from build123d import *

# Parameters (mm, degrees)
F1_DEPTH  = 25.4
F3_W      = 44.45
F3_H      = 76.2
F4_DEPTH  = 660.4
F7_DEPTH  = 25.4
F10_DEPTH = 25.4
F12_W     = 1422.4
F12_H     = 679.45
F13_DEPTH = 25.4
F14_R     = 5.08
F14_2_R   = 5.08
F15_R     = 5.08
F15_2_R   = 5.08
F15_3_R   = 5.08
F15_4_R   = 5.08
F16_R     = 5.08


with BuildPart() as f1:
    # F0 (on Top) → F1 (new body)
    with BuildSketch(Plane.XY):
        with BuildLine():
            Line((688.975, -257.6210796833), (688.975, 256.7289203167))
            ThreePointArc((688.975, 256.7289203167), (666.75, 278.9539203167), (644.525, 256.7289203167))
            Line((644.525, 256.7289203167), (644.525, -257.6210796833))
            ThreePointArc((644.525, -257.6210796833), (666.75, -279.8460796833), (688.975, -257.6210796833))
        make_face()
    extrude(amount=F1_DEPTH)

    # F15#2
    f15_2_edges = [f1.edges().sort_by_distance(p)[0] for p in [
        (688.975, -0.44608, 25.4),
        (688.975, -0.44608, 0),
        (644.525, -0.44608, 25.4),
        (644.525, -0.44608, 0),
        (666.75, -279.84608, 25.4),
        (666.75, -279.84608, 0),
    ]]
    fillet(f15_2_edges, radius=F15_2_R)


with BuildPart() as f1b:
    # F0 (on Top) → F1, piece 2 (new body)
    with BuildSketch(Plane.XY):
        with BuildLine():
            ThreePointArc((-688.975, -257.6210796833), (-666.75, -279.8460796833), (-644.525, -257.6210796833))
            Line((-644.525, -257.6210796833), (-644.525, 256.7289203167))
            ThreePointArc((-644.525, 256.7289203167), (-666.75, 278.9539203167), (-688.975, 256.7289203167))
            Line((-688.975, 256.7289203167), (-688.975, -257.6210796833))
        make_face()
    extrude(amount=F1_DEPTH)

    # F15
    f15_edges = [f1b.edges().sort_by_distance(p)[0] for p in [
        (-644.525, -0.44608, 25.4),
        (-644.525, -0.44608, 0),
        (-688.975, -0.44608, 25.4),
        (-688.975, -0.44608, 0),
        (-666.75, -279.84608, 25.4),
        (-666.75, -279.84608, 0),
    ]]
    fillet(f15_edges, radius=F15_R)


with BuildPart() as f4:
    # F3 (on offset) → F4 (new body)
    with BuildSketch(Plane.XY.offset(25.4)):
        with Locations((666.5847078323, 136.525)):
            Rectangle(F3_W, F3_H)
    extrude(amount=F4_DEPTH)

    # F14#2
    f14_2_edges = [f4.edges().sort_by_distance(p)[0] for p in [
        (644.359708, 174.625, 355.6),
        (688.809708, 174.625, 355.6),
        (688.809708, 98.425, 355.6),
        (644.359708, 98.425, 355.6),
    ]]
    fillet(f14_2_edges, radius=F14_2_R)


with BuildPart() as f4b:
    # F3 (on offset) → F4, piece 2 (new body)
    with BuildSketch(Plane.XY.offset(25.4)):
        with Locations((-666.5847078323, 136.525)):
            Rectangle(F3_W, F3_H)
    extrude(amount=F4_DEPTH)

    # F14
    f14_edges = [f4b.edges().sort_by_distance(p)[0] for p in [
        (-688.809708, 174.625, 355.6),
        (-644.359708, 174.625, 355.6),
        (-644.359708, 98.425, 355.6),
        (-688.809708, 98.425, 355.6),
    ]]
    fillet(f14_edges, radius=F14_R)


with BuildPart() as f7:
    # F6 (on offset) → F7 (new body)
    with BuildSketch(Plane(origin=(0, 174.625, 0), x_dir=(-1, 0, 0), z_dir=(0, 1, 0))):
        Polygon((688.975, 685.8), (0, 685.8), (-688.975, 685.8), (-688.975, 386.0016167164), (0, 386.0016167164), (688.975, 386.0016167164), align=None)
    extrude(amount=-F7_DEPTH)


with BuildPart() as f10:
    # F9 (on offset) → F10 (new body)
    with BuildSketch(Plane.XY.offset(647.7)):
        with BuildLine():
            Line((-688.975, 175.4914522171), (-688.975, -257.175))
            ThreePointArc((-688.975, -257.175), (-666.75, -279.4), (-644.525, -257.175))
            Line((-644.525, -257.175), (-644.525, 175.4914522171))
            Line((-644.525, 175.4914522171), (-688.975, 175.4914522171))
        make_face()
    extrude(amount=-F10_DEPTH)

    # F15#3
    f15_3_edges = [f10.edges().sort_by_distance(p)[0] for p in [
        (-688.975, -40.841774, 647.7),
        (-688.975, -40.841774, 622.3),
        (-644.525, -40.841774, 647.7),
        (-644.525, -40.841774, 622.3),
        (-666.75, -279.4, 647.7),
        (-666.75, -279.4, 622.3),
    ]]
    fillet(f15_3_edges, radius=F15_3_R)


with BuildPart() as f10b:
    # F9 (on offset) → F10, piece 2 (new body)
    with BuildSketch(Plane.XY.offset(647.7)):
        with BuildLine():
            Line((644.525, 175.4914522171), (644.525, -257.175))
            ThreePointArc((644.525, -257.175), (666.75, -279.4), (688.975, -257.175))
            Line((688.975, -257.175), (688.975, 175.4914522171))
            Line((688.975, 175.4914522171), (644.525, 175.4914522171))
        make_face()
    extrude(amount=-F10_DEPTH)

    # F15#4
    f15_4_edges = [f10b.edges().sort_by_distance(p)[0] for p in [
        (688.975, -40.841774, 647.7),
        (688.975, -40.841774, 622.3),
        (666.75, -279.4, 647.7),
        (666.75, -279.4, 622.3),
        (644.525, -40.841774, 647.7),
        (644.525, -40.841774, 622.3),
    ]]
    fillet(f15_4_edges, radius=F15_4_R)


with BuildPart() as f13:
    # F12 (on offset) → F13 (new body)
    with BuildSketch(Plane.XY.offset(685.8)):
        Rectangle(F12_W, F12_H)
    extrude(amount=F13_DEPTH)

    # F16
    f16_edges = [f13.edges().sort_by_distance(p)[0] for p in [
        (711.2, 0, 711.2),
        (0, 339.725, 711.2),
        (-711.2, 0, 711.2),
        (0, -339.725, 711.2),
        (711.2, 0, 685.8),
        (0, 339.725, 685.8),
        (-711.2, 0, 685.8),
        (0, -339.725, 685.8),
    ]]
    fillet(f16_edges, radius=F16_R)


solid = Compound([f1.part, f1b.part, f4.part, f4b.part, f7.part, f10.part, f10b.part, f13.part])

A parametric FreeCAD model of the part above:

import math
import FreeCAD as App
import Part
import Sketcher
from FreeCAD import Vector
Q = App.Units.Quantity


def edges_at(feature, points):
    """Names of the edges that pass closest to the given points."""
    edges = feature.Shape.Edges
    near = lambda p: min(range(len(edges)), key=lambda i: edges[i].distToShape(Part.Vertex(*p))[0])
    return sorted({f"Edge{near(p) + 1}" for p in points})

doc = App.newDocument("Part")
body = doc.addObject("PartDesign::Body", "Body")

# Sketch on XY plane
sketch1 = doc.addObject("Sketcher::SketchObject", "Sketch")
body.addObject(sketch1)
sketch1.AttachmentSupport = (doc.XY_Plane, [""])
sketch1.MapMode = "FlatFace"
sketch1.addGeometry(Part.LineSegment(Vector(689, -258, 0), Vector(689, 257, 0)), False)
sketch1.addGeometry(Part.ArcOfCircle(Part.Circle(Vector(667, 257, 0), Vector(0, 0, 1), 22), math.radians(0), math.radians(180)), False)
sketch1.addGeometry(Part.LineSegment(Vector(645, 257, 0), Vector(645, -258, 0)), False)
sketch1.addGeometry(Part.ArcOfCircle(Part.Circle(Vector(667, -258, 0), Vector(0, 0, 1), 22), math.radians(180), math.radians(360)), False)
sketch1.addConstraint(Sketcher.Constraint("Tangent", 0, 2, 1, 1))
sketch1.addConstraint(Sketcher.Constraint("Tangent", 1, 2, 2, 1))
sketch1.addConstraint(Sketcher.Constraint("Tangent", 2, 2, 3, 1))
sketch1.addConstraint(Sketcher.Constraint("Tangent", 3, 2, 0, 1))
sketch1.addConstraint(Sketcher.Constraint("Vertical", 0))
sketch1.addConstraint(Sketcher.Constraint("Vertical", 2))
sketch1.addConstraint(Sketcher.Constraint("Radius", 1, Q("0.875 in")))
sketch1.addConstraint(Sketcher.Constraint("DistanceY", 0, 1, 0, 2, Q("20.25 in")))
sketch1.addConstraint(Sketcher.Constraint("DistanceX", -1, 1, 1, 3, Q("26.25 in")))
sketch1.addConstraint(Sketcher.Constraint("DistanceY", -1, 1, 1, 3, Q("256.72892 mm")))
pad1 = doc.addObject("PartDesign::Pad", "Pad")
body.addObject(pad1)
pad1.Profile = sketch1
pad1.Length = Q("1 in")
doc.recompute()

fillet = doc.addObject("PartDesign::Fillet", "Fillet")
body.addObject(fillet)
fillet.Base = (pad1, edges_at(pad1, [
    (688.975, -0.446, 25.4),
    (688.975, -0.446, 0),
    (644.525, -0.446, 25.4),
    (644.525, -0.446, 0),
    (666.75, -279.846, 25.4),
    (666.75, -279.846, 0),
]))
fillet.Radius = Q("0.2 in")
body2 = doc.addObject("PartDesign::Body", "Body001")

# Sketch on XY plane
sketch2 = doc.addObject("Sketcher::SketchObject", "Sketch001")
body2.addObject(sketch2)
sketch2.AttachmentSupport = (doc.getObject("XY_Plane001"), [""])
sketch2.MapMode = "FlatFace"
sketch2.addGeometry(Part.ArcOfCircle(Part.Circle(Vector(-667, -258, 0), Vector(0, 0, 1), 22), math.radians(180), math.radians(360)), False)
sketch2.addGeometry(Part.LineSegment(Vector(-645, -258, 0), Vector(-645, 257, 0)), False)
sketch2.addGeometry(Part.ArcOfCircle(Part.Circle(Vector(-667, 257, 0), Vector(0, 0, 1), 22), math.radians(0), math.radians(180)), False)
sketch2.addGeometry(Part.LineSegment(Vector(-689, 257, 0), Vector(-689, -258, 0)), False)
sketch2.addConstraint(Sketcher.Constraint("Tangent", 0, 2, 1, 1))
sketch2.addConstraint(Sketcher.Constraint("Tangent", 1, 2, 2, 1))
sketch2.addConstraint(Sketcher.Constraint("Tangent", 2, 2, 3, 1))
sketch2.addConstraint(Sketcher.Constraint("Tangent", 3, 2, 0, 1))
sketch2.addConstraint(Sketcher.Constraint("Vertical", 1))
sketch2.addConstraint(Sketcher.Constraint("Vertical", 3))
sketch2.addConstraint(Sketcher.Constraint("Radius", 0, Q("0.875 in")))
sketch2.addConstraint(Sketcher.Constraint("DistanceY", 1, 1, 1, 2, Q("20.25 in")))
sketch2.addConstraint(Sketcher.Constraint("DistanceX", 0, 3, -1, 1, Q("26.25 in")))
sketch2.addConstraint(Sketcher.Constraint("DistanceY", 0, 3, -1, 1, Q("257.62108 mm")))
pad2 = doc.addObject("PartDesign::Pad", "Pad001")
body2.addObject(pad2)
pad2.Profile = sketch2
pad2.Length = Q("1 in")
doc.recompute()

fillet2 = doc.addObject("PartDesign::Fillet", "Fillet001")
body2.addObject(fillet2)
fillet2.Base = (pad2, edges_at(pad2, [
    (-644.525, -0.446, 25.4),
    (-644.525, -0.446, 0),
    (-688.975, -0.446, 25.4),
    (-688.975, -0.446, 0),
    (-666.75, -279.846, 25.4),
    (-666.75, -279.846, 0),
]))
fillet2.Radius = Q("0.2 in")
body3 = doc.addObject("PartDesign::Body", "Body002")

# Sketch on XY plane
sketch3 = doc.addObject("Sketcher::SketchObject", "Sketch002")
body3.addObject(sketch3)
sketch3.AttachmentSupport = (doc.getObject("XY_Plane002"), [""])
sketch3.MapMode = "FlatFace"
sketch3.AttachmentOffset = App.Placement(Vector(0, 0, 1 * 25.4), App.Rotation())
sketch3.addGeometry(Part.LineSegment(Vector(644, 175, 0), Vector(644, 98, 0)), False)
sketch3.addGeometry(Part.LineSegment(Vector(644, 98, 0), Vector(689, 98, 0)), False)
sketch3.addGeometry(Part.LineSegment(Vector(689, 98, 0), Vector(689, 175, 0)), False)
sketch3.addGeometry(Part.LineSegment(Vector(689, 175, 0), Vector(644, 175, 0)), False)
sketch3.addConstraint(Sketcher.Constraint("Coincident", 0, 2, 1, 1))
sketch3.addConstraint(Sketcher.Constraint("Coincident", 1, 2, 2, 1))
sketch3.addConstraint(Sketcher.Constraint("Coincident", 2, 2, 3, 1))
sketch3.addConstraint(Sketcher.Constraint("Coincident", 3, 2, 0, 1))
sketch3.addConstraint(Sketcher.Constraint("Vertical", 0))
sketch3.addConstraint(Sketcher.Constraint("Horizontal", 1))
sketch3.addConstraint(Sketcher.Constraint("Vertical", 2))
sketch3.addConstraint(Sketcher.Constraint("Horizontal", 3))
sketch3.addConstraint(Sketcher.Constraint("DistanceY", 0, 2, 0, 1, Q("3 in")))
sketch3.addConstraint(Sketcher.Constraint("DistanceX", 1, 1, 1, 2, Q("1.75 in")))
sketch3.addConstraint(Sketcher.Constraint("DistanceY", -1, 1, 0, 2, Q("3.875 in")))
sketch3.addConstraint(Sketcher.Constraint("DistanceX", -1, 1, 0, 2, Q("644.359708 mm")))
pad3 = doc.addObject("PartDesign::Pad", "Pad002")
body3.addObject(pad3)
pad3.Profile = sketch3
pad3.Length = Q("26 in")
doc.recompute()

fillet3 = doc.addObject("PartDesign::Fillet", "Fillet002")
body3.addObject(fillet3)
fillet3.Base = (pad3, edges_at(pad3, [
    (644.36, 174.625, 355.6),
    (688.81, 174.625, 355.6),
    (688.81, 98.425, 355.6),
    (644.36, 98.425, 355.6),
]))
fillet3.Radius = Q("0.2 in")
body4 = doc.addObject("PartDesign::Body", "Body003")

# Sketch on XY plane
sketch4 = doc.addObject("Sketcher::SketchObject", "Sketch003")
body4.addObject(sketch4)
sketch4.AttachmentSupport = (doc.getObject("XY_Plane003"), [""])
sketch4.MapMode = "FlatFace"
sketch4.AttachmentOffset = App.Placement(Vector(0, 0, 1 * 25.4), App.Rotation())
sketch4.addGeometry(Part.LineSegment(Vector(-689, 175, 0), Vector(-689, 98, 0)), False)
sketch4.addGeometry(Part.LineSegment(Vector(-689, 98, 0), Vector(-644, 98, 0)), False)
sketch4.addGeometry(Part.LineSegment(Vector(-644, 98, 0), Vector(-644, 175, 0)), False)
sketch4.addGeometry(Part.LineSegment(Vector(-644, 175, 0), Vector(-689, 175, 0)), False)
sketch4.addConstraint(Sketcher.Constraint("Coincident", 0, 2, 1, 1))
sketch4.addConstraint(Sketcher.Constraint("Coincident", 1, 2, 2, 1))
sketch4.addConstraint(Sketcher.Constraint("Coincident", 2, 2, 3, 1))
sketch4.addConstraint(Sketcher.Constraint("Coincident", 3, 2, 0, 1))
sketch4.addConstraint(Sketcher.Constraint("Vertical", 0))
sketch4.addConstraint(Sketcher.Constraint("Horizontal", 1))
sketch4.addConstraint(Sketcher.Constraint("Vertical", 2))
sketch4.addConstraint(Sketcher.Constraint("Horizontal", 3))
sketch4.addConstraint(Sketcher.Constraint("DistanceY", 0, 2, 0, 1, Q("3 in")))
sketch4.addConstraint(Sketcher.Constraint("DistanceX", 1, 1, 1, 2, Q("1.75 in")))
sketch4.addConstraint(Sketcher.Constraint("DistanceY", -1, 1, 0, 2, Q("3.875 in")))
sketch4.addConstraint(Sketcher.Constraint("DistanceX", 0, 2, -1, 1, Q("688.809708 mm")))
pad4 = doc.addObject("PartDesign::Pad", "Pad003")
body4.addObject(pad4)
pad4.Profile = sketch4
pad4.Length = Q("26 in")
doc.recompute()

fillet4 = doc.addObject("PartDesign::Fillet", "Fillet003")
body4.addObject(fillet4)
fillet4.Base = (pad4, edges_at(pad4, [
    (-688.81, 174.625, 355.6),
    (-644.36, 174.625, 355.6),
    (-644.36, 98.425, 355.6),
    (-688.81, 98.425, 355.6),
]))
fillet4.Radius = Q("0.2 in")
body5 = doc.addObject("PartDesign::Body", "Body004")

# Sketch on XZ plane
sketch5 = doc.addObject("Sketcher::SketchObject", "Sketch004")
body5.addObject(sketch5)
sketch5.AttachmentSupport = (doc.getObject("XZ_Plane004"), [""])
sketch5.MapMode = "FlatFace"
sketch5.AttachmentOffset = App.Placement(Vector(0, 0, -6.875 * 25.4), App.Rotation())
sketch5.addGeometry(Part.LineSegment(Vector(-689, 686, 0), Vector(689, 686, 0)), False)
sketch5.addGeometry(Part.LineSegment(Vector(689, 686, 0), Vector(689, 386, 0)), False)
sketch5.addGeometry(Part.LineSegment(Vector(689, 386, 0), Vector(-689, 386, 0)), False)
sketch5.addGeometry(Part.LineSegment(Vector(-689, 386, 0), Vector(-689, 686, 0)), False)
sketch5.addConstraint(Sketcher.Constraint("Coincident", 0, 2, 1, 1))
sketch5.addConstraint(Sketcher.Constraint("Coincident", 1, 2, 2, 1))
sketch5.addConstraint(Sketcher.Constraint("Coincident", 2, 2, 3, 1))
sketch5.addConstraint(Sketcher.Constraint("Coincident", 3, 2, 0, 1))
sketch5.addConstraint(Sketcher.Constraint("Horizontal", 0))
sketch5.addConstraint(Sketcher.Constraint("Vertical", 1))
sketch5.addConstraint(Sketcher.Constraint("Horizontal", 2))
sketch5.addConstraint(Sketcher.Constraint("Vertical", 3))
sketch5.addConstraint(Sketcher.Constraint("DistanceY", -1, 1, 0, 2, Q("27 in")))
sketch5.addConstraint(Sketcher.Constraint("DistanceX", 0, 1, 0, 2, Q("54.25 in")))
sketch5.addConstraint(Sketcher.Constraint("DistanceX", -1, 1, 0, 2, Q("27.125 in")))
sketch5.addConstraint(Sketcher.Constraint("DistanceY", 1, 2, 1, 1, Q("299.798383 mm")))
pad5 = doc.addObject("PartDesign::Pad", "Pad004")
body5.addObject(pad5)
pad5.Profile = sketch5
pad5.Length = Q("1 in")
body6 = doc.addObject("PartDesign::Body", "Body005")

# Sketch on XY plane
sketch6 = doc.addObject("Sketcher::SketchObject", "Sketch005")
body6.addObject(sketch6)
sketch6.AttachmentSupport = (doc.getObject("XY_Plane005"), [""])
sketch6.MapMode = "FlatFace"
sketch6.AttachmentOffset = App.Placement(Vector(0, 0, 25.5 * 25.4), App.Rotation())
sketch6.addGeometry(Part.LineSegment(Vector(-689, 175, 0), Vector(-689, -257, 0)), False)
sketch6.addGeometry(Part.ArcOfCircle(Part.Circle(Vector(-667, -257, 0), Vector(0, 0, 1), 22), math.radians(180), math.radians(360)), False)
sketch6.addGeometry(Part.LineSegment(Vector(-645, -257, 0), Vector(-645, 175, 0)), False)
sketch6.addGeometry(Part.LineSegment(Vector(-645, 175, 0), Vector(-689, 175, 0)), False)
sketch6.addConstraint(Sketcher.Constraint("Tangent", 0, 2, 1, 1))
sketch6.addConstraint(Sketcher.Constraint("Tangent", 1, 2, 2, 1))
sketch6.addConstraint(Sketcher.Constraint("Coincident", 2, 2, 3, 1))
sketch6.addConstraint(Sketcher.Constraint("Coincident", 3, 2, 0, 1))
sketch6.addConstraint(Sketcher.Constraint("Vertical", 0))
sketch6.addConstraint(Sketcher.Constraint("Vertical", 2))
sketch6.addConstraint(Sketcher.Constraint("Horizontal", 3))
sketch6.addConstraint(Sketcher.Constraint("Radius", 1, Q("0.875 in")))
sketch6.addConstraint(Sketcher.Constraint("DistanceX", 1, 3, -1, 1, Q("26.25 in")))
sketch6.addConstraint(Sketcher.Constraint("DistanceY", 1, 3, -1, 1, Q("10.125 in")))
sketch6.addConstraint(Sketcher.Constraint("DistanceY", 0, 2, 0, 1, Q("432.666452 mm")))
pad6 = doc.addObject("PartDesign::Pad", "Pad005")
body6.addObject(pad6)
pad6.Profile = sketch6
pad6.Length = Q("1 in")
pad6.Reversed = True
doc.recompute()

fillet5 = doc.addObject("PartDesign::Fillet", "Fillet004")
body6.addObject(fillet5)
fillet5.Base = (pad6, edges_at(pad6, [
    (-688.975, -40.842, 647.7),
    (-688.975, -40.842, 622.3),
    (-644.525, -40.842, 647.7),
    (-644.525, -40.842, 622.3),
    (-666.75, -279.4, 647.7),
    (-666.75, -279.4, 622.3),
]))
fillet5.Radius = Q("0.2 in")
body7 = doc.addObject("PartDesign::Body", "Body006")

# Sketch on XY plane
sketch7 = doc.addObject("Sketcher::SketchObject", "Sketch006")
body7.addObject(sketch7)
sketch7.AttachmentSupport = (doc.getObject("XY_Plane006"), [""])
sketch7.MapMode = "FlatFace"
sketch7.AttachmentOffset = App.Placement(Vector(0, 0, 25.5 * 25.4), App.Rotation())
sketch7.addGeometry(Part.LineSegment(Vector(645, 175, 0), Vector(645, -257, 0)), False)
sketch7.addGeometry(Part.ArcOfCircle(Part.Circle(Vector(667, -257, 0), Vector(0, 0, 1), 22), math.radians(180), math.radians(360)), False)
sketch7.addGeometry(Part.LineSegment(Vector(689, -257, 0), Vector(689, 175, 0)), False)
sketch7.addGeometry(Part.LineSegment(Vector(689, 175, 0), Vector(645, 175, 0)), False)
sketch7.addConstraint(Sketcher.Constraint("Tangent", 0, 2, 1, 1))
sketch7.addConstraint(Sketcher.Constraint("Tangent", 1, 2, 2, 1))
sketch7.addConstraint(Sketcher.Constraint("Coincident", 2, 2, 3, 1))
sketch7.addConstraint(Sketcher.Constraint("Coincident", 3, 2, 0, 1))
sketch7.addConstraint(Sketcher.Constraint("Vertical", 0))
sketch7.addConstraint(Sketcher.Constraint("Vertical", 2))
sketch7.addConstraint(Sketcher.Constraint("Horizontal", 3))
sketch7.addConstraint(Sketcher.Constraint("Radius", 1, Q("0.875 in")))
sketch7.addConstraint(Sketcher.Constraint("DistanceX", -1, 1, 1, 3, Q("26.25 in")))
sketch7.addConstraint(Sketcher.Constraint("DistanceY", 1, 3, -1, 1, Q("10.125 in")))
sketch7.addConstraint(Sketcher.Constraint("DistanceY", 0, 2, 0, 1, Q("432.666452 mm")))
pad7 = doc.addObject("PartDesign::Pad", "Pad006")
body7.addObject(pad7)
pad7.Profile = sketch7
pad7.Length = Q("1 in")
pad7.Reversed = True
doc.recompute()

fillet6 = doc.addObject("PartDesign::Fillet", "Fillet005")
body7.addObject(fillet6)
fillet6.Base = (pad7, edges_at(pad7, [
    (688.975, -40.842, 647.7),
    (688.975, -40.842, 622.3),
    (666.75, -279.4, 647.7),
    (666.75, -279.4, 622.3),
    (644.525, -40.842, 647.7),
    (644.525, -40.842, 622.3),
]))
fillet6.Radius = Q("0.2 in")
body8 = doc.addObject("PartDesign::Body", "Body007")

# Sketch on XY plane
sketch8 = doc.addObject("Sketcher::SketchObject", "Sketch007")
body8.addObject(sketch8)
sketch8.AttachmentSupport = (doc.getObject("XY_Plane007"), [""])
sketch8.MapMode = "FlatFace"
sketch8.AttachmentOffset = App.Placement(Vector(0, 0, 27 * 25.4), App.Rotation())
sketch8.addGeometry(Part.LineSegment(Vector(-711, 340, 0), Vector(-711, -340, 0)), False)
sketch8.addGeometry(Part.LineSegment(Vector(-711, -340, 0), Vector(711, -340, 0)), False)
sketch8.addGeometry(Part.LineSegment(Vector(711, -340, 0), Vector(711, 340, 0)), False)
sketch8.addGeometry(Part.LineSegment(Vector(711, 340, 0), Vector(-711, 340, 0)), False)
sketch8.addConstraint(Sketcher.Constraint("Coincident", 0, 2, 1, 1))
sketch8.addConstraint(Sketcher.Constraint("Coincident", 1, 2, 2, 1))
sketch8.addConstraint(Sketcher.Constraint("Coincident", 2, 2, 3, 1))
sketch8.addConstraint(Sketcher.Constraint("Coincident", 3, 2, 0, 1))
sketch8.addConstraint(Sketcher.Constraint("Vertical", 0))
sketch8.addConstraint(Sketcher.Constraint("Horizontal", 1))
sketch8.addConstraint(Sketcher.Constraint("Vertical", 2))
sketch8.addConstraint(Sketcher.Constraint("Horizontal", 3))
sketch8.addConstraint(Sketcher.Constraint("Symmetric", 0, 2, 2, 2, -1, 1))
sketch8.addConstraint(Sketcher.Constraint("DistanceX", 1, 1, 1, 2, Q("56 in")))
sketch8.addConstraint(Sketcher.Constraint("DistanceY", 0, 2, 0, 1, Q("26.75 in")))
pad8 = doc.addObject("PartDesign::Pad", "Pad007")
body8.addObject(pad8)
pad8.Profile = sketch8
pad8.Length = Q("1 in")
doc.recompute()

fillet7 = doc.addObject("PartDesign::Fillet", "Fillet006")
body8.addObject(fillet7)
fillet7.Base = (pad8, edges_at(pad8, [
    (711.2, 0, 711.2),
    (0, 339.725, 711.2),
    (-711.2, 0, 711.2),
    (0, -339.725, 711.2),
    (711.2, 0, 685.8),
    (0, 339.725, 685.8),
    (-711.2, 0, 685.8),
    (0, -339.725, 685.8),
]))
fillet7.Radius = Q("0.2 in")

doc.recompute()
